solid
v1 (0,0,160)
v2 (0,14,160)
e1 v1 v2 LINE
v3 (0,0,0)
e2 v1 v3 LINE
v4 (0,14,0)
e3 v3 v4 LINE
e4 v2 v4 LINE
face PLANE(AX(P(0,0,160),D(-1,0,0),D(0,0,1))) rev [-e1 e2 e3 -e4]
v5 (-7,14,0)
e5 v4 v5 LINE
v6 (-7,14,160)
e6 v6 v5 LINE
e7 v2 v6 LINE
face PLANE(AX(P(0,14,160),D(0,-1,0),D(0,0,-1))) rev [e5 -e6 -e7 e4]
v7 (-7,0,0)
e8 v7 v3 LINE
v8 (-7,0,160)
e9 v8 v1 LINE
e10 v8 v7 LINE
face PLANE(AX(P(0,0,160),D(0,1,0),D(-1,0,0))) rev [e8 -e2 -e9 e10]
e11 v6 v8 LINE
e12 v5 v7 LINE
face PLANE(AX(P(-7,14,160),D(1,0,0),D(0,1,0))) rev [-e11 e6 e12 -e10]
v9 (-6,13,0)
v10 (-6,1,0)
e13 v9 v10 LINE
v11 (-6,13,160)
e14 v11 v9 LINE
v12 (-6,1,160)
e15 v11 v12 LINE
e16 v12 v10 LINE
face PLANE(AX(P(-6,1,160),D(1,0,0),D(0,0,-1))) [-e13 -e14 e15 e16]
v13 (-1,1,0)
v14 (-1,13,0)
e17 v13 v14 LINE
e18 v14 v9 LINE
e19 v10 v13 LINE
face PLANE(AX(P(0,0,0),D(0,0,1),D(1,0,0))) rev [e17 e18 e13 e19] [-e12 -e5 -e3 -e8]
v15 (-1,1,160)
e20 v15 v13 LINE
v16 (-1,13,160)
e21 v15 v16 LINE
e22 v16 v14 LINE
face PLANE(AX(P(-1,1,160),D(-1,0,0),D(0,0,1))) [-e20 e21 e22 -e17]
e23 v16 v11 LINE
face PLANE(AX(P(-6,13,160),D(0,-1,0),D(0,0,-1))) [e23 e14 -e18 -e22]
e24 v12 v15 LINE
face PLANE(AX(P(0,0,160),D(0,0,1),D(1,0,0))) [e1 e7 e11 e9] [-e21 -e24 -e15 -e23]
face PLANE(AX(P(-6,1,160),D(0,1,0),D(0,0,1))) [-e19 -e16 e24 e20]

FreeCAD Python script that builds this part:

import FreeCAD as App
import Part
import Sketcher

V = App.Vector
Q = App.Units.Quantity


def add_polygon(sketch, points):
    """Adds a closed chain of lines whose ends are joined by coincident constraints."""
    first, n = sketch.GeometryCount, len(points)
    for a, b in zip(points, points[1:] + points[:1]):
        sketch.addGeometry(Part.LineSegment(App.Vector(*a, 0), App.Vector(*b, 0)), False)
    for i in range(n):
        sketch.addConstraint(Sketcher.Constraint("Coincident", first + i, 2, first + (i + 1) % n, 1))

doc = App.newDocument("Part")
params = doc.addObject("Spreadsheet::Sheet", "Params")
for row, (alias, value) in enumerate([
    ("sketch1_width", "7 mm"),
    ("sketch1_width2", "5 mm"),
    ("sketch1_height", "14 mm"),
    ("sketch1_height2", "12 mm"),
    ("pad1_length", "160 mm"),
], start=1):
    params.set(f"A{row}", alias)
    params.set(f"B{row}", "=" + value)
    params.setAlias(f"B{row}", alias)

body = doc.addObject("PartDesign::Body", "Body")

sketch1 = body.newObject("Sketcher::SketchObject", "Sketch")
sketch1.AttachmentSupport = (doc.getObject("XY_Plane"), [""])
sketch1.MapMode = "FlatFace"
add_polygon(sketch1, [(-7, 14), (-7, 0), (0, 0), (0, 14)])
add_polygon(sketch1, [(-1, 1), (-6, 1), (-6, 13), (-1, 13)])
sketch1.addConstraint(Sketcher.Constraint("Vertical", 0))
sketch1.addConstraint(Sketcher.Constraint("Horizontal", 1))
sketch1.addConstraint(Sketcher.Constraint("Vertical", 2))
sketch1.addConstraint(Sketcher.Constraint("Horizontal", 3))
sketch1.addConstraint(Sketcher.Constraint("Horizontal", 4))
sketch1.addConstraint(Sketcher.Constraint("Vertical", 5))
sketch1.addConstraint(Sketcher.Constraint("Horizontal", 6))
sketch1.addConstraint(Sketcher.Constraint("Vertical", 7))
sketch1.addConstraint(Sketcher.Constraint("Coincident", 1, 2, -1, 1))
sketch1.addConstraint(Sketcher.Constraint("DistanceX", 1, 1, 1, 2, Q("7 mm")))
sketch1.addConstraint(Sketcher.Constraint("DistanceX", 4, 2, 4, 1, Q("5 mm")))
sketch1.addConstraint(Sketcher.Constraint("DistanceY", 0, 2, 0, 1, Q("14 mm")))
sketch1.addConstraint(Sketcher.Constraint("DistanceY", 5, 1, 5, 2, Q("12 mm")))
sketch1.addConstraint(Sketcher.Constraint("DistanceX", 4, 2, -1, 1, Q("6 mm")))
sketch1.addConstraint(Sketcher.Constraint("DistanceY", -1, 1, 4, 2, Q("1 mm")))
sketch1.setExpression("Constraints[17]", "Params.sketch1_width")
sketch1.setExpression("Constraints[18]", "Params.sketch1_width2")
sketch1.setExpression("Constraints[19]", "Params.sketch1_height")
sketch1.setExpression("Constraints[20]", "Params.sketch1_height2")
pad1 = body.newObject("PartDesign::Pad", "Pad")
pad1.Profile = sketch1
pad1.setExpression("Length", "Params.pad1_length")

doc.recompute()
